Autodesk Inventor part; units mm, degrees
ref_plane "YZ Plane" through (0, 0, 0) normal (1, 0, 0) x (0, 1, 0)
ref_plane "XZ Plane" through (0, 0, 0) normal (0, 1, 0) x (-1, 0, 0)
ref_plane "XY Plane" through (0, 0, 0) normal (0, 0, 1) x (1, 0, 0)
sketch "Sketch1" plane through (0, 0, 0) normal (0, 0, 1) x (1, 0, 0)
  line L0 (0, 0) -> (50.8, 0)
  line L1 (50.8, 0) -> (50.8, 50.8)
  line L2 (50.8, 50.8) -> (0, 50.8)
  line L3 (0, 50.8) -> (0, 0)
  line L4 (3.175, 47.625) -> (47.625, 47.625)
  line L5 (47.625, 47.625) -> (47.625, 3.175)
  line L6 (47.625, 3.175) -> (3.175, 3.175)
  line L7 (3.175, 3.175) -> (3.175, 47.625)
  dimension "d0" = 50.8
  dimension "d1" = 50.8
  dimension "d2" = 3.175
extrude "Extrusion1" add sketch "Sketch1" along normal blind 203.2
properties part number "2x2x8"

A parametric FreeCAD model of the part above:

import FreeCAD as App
import Part
import Sketcher
Q = App.Units.Quantity

doc = App.newDocument("Part")
body = doc.addObject("PartDesign::Body", "Body")

# Sketch on XY plane
sketch1 = body.newObject("Sketcher::SketchObject", "Sketch")
sketch1.AttachmentSupport = (doc.getObject("XY_Plane"), [""])
sketch1.MapMode = "FlatFace"
sketch1.addGeometry(Part.LineSegment(App.Vector(0, 51, 0), App.Vector(0, 0, 0)), False)
sketch1.addGeometry(Part.LineSegment(App.Vector(0, 0, 0), App.Vector(51, 0, 0)), False)
sketch1.addGeometry(Part.LineSegment(App.Vector(51, 0, 0), App.Vector(51, 51, 0)), False)
sketch1.addGeometry(Part.LineSegment(App.Vector(51, 51, 0), App.Vector(0, 51, 0)), False)
sketch1.addGeometry(Part.LineSegment(App.Vector(3, 3, 0), App.Vector(3, 48, 0)), False)
sketch1.addGeometry(Part.LineSegment(App.Vector(3, 48, 0), App.Vector(48, 48, 0)), False)
sketch1.addGeometry(Part.LineSegment(App.Vector(48, 48, 0), App.Vector(48, 3, 0)), False)
sketch1.addGeometry(Part.LineSegment(App.Vector(48, 3, 0), App.Vector(3, 3, 0)), False)
sketch1.addConstraint(Sketcher.Constraint("Coincident", 0, 2, 1, 1))
sketch1.addConstraint(Sketcher.Constraint("Coincident", 1, 2, 2, 1))
sketch1.addConstraint(Sketcher.Constraint("Coincident", 2, 2, 3, 1))
sketch1.addConstraint(Sketcher.Constraint("Coincident", 3, 2, 0, 1))
sketch1.addConstraint(Sketcher.Constraint("Coincident", 4, 2, 5, 1))
sketch1.addConstraint(Sketcher.Constraint("Coincident", 5, 2, 6, 1))
sketch1.addConstraint(Sketcher.Constraint("Coincident", 6, 2, 7, 1))
sketch1.addConstraint(Sketcher.Constraint("Coincident", 7, 2, 4, 1))
sketch1.addConstraint(Sketcher.Constraint("Vertical", 0))
sketch1.addConstraint(Sketcher.Constraint("Horizontal", 1))
sketch1.addConstraint(Sketcher.Constraint("Vertical", 2))
sketch1.addConstraint(Sketcher.Constraint("Horizontal", 3))
sketch1.addConstraint(Sketcher.Constraint("Vertical", 4))
sketch1.addConstraint(Sketcher.Constraint("Horizontal", 5))
sketch1.addConstraint(Sketcher.Constraint("Vertical", 6))
sketch1.addConstraint(Sketcher.Constraint("Horizontal", 7))
sketch1.addConstraint(Sketcher.Constraint("Coincident", 0, 2, -1, 1))
sketch1.addConstraint(Sketcher.Constraint("Equal", 3, 0))
sketch1.addConstraint(Sketcher.Constraint("Equal", 7, 4))
sketch1.addConstraint(Sketcher.Constraint("DistanceX", 1, 1, 1, 2, Q("2 in")))
sketch1.addConstraint(Sketcher.Constraint("DistanceX", -1, 1, 4, 2, Q("0.125 in")))
sketch1.addConstraint(Sketcher.Constraint("DistanceY", -1, 1, 6, 2, Q("0.125 in")))
sketch1.addConstraint(Sketcher.Constraint("DistanceY", 4, 2, 3, 2, Q("0.125 in")))
pad1 = body.newObject("PartDesign::Pad", "Pad")
pad1.Profile = sketch1
pad1.Length = Q("8 in")

doc.recompute()
